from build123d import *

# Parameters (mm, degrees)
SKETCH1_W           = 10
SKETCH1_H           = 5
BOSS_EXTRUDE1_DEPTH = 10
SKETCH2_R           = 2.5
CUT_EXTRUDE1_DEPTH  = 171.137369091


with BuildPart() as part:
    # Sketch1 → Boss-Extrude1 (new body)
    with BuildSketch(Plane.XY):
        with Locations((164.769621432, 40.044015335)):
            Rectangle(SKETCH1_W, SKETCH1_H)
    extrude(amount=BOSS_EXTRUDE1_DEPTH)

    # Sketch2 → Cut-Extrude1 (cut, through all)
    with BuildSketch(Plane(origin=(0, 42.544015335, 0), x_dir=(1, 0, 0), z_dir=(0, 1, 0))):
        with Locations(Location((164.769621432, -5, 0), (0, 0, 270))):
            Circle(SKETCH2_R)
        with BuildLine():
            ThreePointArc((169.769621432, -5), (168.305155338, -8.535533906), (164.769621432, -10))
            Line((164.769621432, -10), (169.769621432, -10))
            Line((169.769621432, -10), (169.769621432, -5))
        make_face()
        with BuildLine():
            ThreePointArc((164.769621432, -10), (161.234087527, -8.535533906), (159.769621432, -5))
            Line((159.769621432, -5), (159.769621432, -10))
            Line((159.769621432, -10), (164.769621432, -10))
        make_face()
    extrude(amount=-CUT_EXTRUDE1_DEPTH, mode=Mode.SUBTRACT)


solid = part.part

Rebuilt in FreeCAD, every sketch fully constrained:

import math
import FreeCAD as App
import Part
import Sketcher
from FreeCAD import Vector


def add_polygon(sketch, points):
    """Adds a closed chain of lines whose ends are joined by coincident constraints."""
    first, n = sketch.GeometryCount, len(points)
    for a, b in zip(points, points[1:] + points[:1]):
        sketch.addGeometry(Part.LineSegment(App.Vector(*a, 0), App.Vector(*b, 0)), False)
    for i in range(n):
        sketch.addConstraint(Sketcher.Constraint("Coincident", first + i, 2, first + (i + 1) % n, 1))

doc = App.newDocument("Part")
body = doc.addObject("PartDesign::Body", "Body")

sketch1 = body.newObject("Sketcher::SketchObject", "Sketch")
sketch1.AttachmentSupport = (doc.getObject("XY_Plane"), [""])
sketch1.MapMode = "FlatFace"
add_polygon(sketch1, [(160, 43), (160, 38), (170, 38), (170, 43)])
sketch1.addConstraint(Sketcher.Constraint("Vertical", 0))
sketch1.addConstraint(Sketcher.Constraint("Horizontal", 1))
sketch1.addConstraint(Sketcher.Constraint("Vertical", 2))
sketch1.addConstraint(Sketcher.Constraint("Horizontal", 3))
sketch1.addConstraint(Sketcher.Constraint("DistanceX", 1, 1, 1, 2, 10.0))
sketch1.addConstraint(Sketcher.Constraint("DistanceY", 0, 2, 0, 1, 5.0))
sketch1.addConstraint(Sketcher.Constraint("DistanceX", -1, 1, 0, 2, 159.769621))
sketch1.addConstraint(Sketcher.Constraint("DistanceY", -1, 1, 0, 2, 37.544015))
pad1 = body.newObject("PartDesign::Pad", "Pad")
pad1.Profile = sketch1
pad1.Length = 10

sketch2 = body.newObject("Sketcher::SketchObject", "Sketch001")
sketch2.AttachmentSupport = (doc.getObject("XZ_Plane"), [""])
sketch2.MapMode = "FlatFace"
sketch2.AttachmentOffset = App.Placement(Vector(0, 0, -42.544015), App.Rotation())
sketch2.addGeometry(Part.Circle(Vector(164.8, 5, 0), Vector(0, 0, 1), 2.5), False)
sketch2.addGeometry(Part.ArcOfCircle(Part.Circle(Vector(164.8, 5, 0), Vector(0, 0, 1), 5), math.radians(0), math.radians(90)), False)
sketch2.addGeometry(Part.LineSegment(Vector(164.8, 10, 0), Vector(169.8, 10, 0)), False)
sketch2.addGeometry(Part.LineSegment(Vector(169.8, 10, 0), Vector(169.8, 5, 0)), False)
sketch2.addGeometry(Part.ArcOfCircle(Part.Circle(Vector(164.8, 5, 0), Vector(0, 0, 1), 5), math.radians(90), math.radians(180)), False)
sketch2.addGeometry(Part.LineSegment(Vector(159.8, 5, 0), Vector(159.8, 10, 0)), False)
sketch2.addGeometry(Part.LineSegment(Vector(159.8, 10, 0), Vector(164.8, 10, 0)), False)
sketch2.addConstraint(Sketcher.Constraint("Tangent", 1, 2, 2, 1))
sketch2.addConstraint(Sketcher.Constraint("Coincident", 2, 2, 3, 1))
sketch2.addConstraint(Sketcher.Constraint("Tangent", 3, 2, 1, 1))
sketch2.addConstraint(Sketcher.Constraint("Tangent", 4, 2, 5, 1))
sketch2.addConstraint(Sketcher.Constraint("Coincident", 5, 2, 6, 1))
sketch2.addConstraint(Sketcher.Constraint("Tangent", 6, 2, 4, 1))
sketch2.addConstraint(Sketcher.Constraint("Horizontal", 2))
sketch2.addConstraint(Sketcher.Constraint("Vertical", 3))
sketch2.addConstraint(Sketcher.Constraint("Vertical", 5))
sketch2.addConstraint(Sketcher.Constraint("Horizontal", 6))
sketch2.addConstraint(Sketcher.Constraint("Coincident", 1, 3, 0, 3))
sketch2.addConstraint(Sketcher.Constraint("Coincident", 4, 3, 0, 3))
sketch2.addConstraint(Sketcher.Constraint("Equal", 1, 4))
sketch2.addConstraint(Sketcher.Constraint("Diameter", 0, 5.0))
sketch2.addConstraint(Sketcher.Constraint("Radius", 1, 5.0))
sketch2.addConstraint(Sketcher.Constraint("DistanceY", -1, 1, 0, 3, 5.0))
sketch2.addConstraint(Sketcher.Constraint("DistanceX", -1, 1, 0, 3, 164.769621))
pocket1 = body.newObject("PartDesign::Pocket", "Pocket")
pocket1.Profile = sketch2
pocket1.Type = "ThroughAll"
pocket1.Reversed = True

doc.recompute()
